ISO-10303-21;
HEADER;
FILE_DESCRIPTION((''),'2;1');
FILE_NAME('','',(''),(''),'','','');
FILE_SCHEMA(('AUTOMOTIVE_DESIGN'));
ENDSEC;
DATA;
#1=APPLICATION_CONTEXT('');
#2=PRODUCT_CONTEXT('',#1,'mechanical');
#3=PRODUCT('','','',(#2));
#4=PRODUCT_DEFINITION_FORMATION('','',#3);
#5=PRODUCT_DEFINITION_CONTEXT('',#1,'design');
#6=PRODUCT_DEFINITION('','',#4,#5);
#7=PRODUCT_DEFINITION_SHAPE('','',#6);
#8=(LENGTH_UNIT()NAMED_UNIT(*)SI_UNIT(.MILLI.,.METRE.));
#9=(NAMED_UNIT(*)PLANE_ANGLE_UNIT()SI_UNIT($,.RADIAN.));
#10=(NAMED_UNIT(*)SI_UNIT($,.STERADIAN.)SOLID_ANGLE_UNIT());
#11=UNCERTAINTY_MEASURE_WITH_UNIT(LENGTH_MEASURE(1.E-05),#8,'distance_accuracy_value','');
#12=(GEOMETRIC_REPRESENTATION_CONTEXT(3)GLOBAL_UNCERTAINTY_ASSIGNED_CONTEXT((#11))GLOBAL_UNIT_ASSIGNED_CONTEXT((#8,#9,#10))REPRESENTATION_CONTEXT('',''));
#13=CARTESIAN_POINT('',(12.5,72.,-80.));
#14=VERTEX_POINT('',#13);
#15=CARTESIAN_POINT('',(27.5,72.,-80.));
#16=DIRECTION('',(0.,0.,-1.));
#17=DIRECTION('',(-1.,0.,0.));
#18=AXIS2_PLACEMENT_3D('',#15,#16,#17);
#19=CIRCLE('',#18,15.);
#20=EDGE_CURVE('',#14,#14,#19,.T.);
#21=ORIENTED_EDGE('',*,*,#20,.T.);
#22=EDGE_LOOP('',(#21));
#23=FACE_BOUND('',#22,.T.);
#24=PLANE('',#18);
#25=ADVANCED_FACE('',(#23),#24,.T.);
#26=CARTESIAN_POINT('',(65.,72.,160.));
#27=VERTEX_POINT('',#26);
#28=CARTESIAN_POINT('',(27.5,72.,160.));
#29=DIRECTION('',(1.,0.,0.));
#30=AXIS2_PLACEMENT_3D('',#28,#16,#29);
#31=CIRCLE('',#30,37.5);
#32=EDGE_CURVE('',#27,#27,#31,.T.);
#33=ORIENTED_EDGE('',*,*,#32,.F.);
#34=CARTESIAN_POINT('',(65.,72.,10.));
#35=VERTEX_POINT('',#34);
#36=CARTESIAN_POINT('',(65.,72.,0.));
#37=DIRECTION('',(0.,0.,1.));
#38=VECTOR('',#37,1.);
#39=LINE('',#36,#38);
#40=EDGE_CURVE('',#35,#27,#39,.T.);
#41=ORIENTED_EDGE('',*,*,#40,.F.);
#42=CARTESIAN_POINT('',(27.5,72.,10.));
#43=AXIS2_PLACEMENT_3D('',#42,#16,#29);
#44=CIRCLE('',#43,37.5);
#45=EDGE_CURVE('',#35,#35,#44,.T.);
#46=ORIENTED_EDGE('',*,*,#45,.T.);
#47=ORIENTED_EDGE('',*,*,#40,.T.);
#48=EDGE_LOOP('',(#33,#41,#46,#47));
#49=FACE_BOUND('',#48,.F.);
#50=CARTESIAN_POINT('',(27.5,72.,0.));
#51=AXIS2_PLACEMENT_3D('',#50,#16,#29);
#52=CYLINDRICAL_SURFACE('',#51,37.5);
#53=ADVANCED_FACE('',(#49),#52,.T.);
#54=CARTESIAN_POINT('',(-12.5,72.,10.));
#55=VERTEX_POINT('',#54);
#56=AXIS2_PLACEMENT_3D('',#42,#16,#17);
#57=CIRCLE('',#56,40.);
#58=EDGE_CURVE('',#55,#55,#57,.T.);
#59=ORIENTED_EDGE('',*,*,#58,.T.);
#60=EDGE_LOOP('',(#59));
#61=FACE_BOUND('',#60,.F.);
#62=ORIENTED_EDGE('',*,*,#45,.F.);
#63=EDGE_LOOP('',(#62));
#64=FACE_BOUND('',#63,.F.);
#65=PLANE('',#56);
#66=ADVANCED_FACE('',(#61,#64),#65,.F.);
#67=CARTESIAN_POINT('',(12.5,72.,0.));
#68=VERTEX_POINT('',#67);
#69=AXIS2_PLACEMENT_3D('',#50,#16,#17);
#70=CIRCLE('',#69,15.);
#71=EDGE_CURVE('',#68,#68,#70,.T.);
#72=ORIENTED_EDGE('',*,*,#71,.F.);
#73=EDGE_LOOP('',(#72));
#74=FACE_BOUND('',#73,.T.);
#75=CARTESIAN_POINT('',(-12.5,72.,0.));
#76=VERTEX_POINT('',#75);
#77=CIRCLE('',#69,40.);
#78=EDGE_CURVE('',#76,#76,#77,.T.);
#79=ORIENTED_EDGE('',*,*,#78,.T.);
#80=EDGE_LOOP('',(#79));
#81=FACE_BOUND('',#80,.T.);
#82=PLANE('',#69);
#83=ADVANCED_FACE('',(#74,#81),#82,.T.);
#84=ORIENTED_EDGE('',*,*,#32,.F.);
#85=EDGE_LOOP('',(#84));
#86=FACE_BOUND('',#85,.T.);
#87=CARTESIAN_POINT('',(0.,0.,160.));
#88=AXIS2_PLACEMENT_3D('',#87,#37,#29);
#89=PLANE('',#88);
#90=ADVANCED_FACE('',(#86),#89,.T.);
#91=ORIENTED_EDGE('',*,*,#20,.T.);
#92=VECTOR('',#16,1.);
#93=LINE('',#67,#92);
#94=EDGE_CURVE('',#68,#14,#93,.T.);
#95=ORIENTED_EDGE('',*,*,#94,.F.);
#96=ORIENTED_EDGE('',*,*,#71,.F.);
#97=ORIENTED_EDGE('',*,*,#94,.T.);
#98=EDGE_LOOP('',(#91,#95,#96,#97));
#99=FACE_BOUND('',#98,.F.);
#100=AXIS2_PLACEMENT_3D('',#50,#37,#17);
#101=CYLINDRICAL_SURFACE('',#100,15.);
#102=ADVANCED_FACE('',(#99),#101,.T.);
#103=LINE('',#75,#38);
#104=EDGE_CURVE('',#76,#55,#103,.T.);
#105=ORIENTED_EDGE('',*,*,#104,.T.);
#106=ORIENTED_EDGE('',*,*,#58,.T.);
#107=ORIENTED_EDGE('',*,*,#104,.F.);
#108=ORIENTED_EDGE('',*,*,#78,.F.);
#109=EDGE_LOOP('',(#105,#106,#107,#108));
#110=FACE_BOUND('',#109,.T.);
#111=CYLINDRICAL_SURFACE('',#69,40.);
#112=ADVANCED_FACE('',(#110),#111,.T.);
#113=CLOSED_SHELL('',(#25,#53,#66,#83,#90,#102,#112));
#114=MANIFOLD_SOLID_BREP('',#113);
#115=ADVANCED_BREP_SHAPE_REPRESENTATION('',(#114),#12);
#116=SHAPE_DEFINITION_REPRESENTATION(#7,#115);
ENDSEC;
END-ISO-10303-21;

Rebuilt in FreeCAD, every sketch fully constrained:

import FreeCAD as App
import Part
import Sketcher
from FreeCAD import Vector

doc = App.newDocument("Part")
body = doc.addObject("PartDesign::Body", "Body")

# Sketch on XY plane
sketch1 = body.newObject("Sketcher::SketchObject", "Sketch")
sketch1.AttachmentSupport = (doc.getObject("XY_Plane"), [""])
sketch1.MapMode = "FlatFace"
sketch1.addGeometry(Part.Circle(Vector(28, 72, 0), Vector(0, 0, 1), 38), False)
sketch1.addConstraint([
    Sketcher.Constraint("Diameter", 0, 75.0),
    Sketcher.Constraint("DistanceY", -1, 1, 0, 3, 72.0),
    Sketcher.Constraint("DistanceX", -1, 1, 0, 3, 27.5),
])
pad1 = body.newObject("PartDesign::Pad", "Pad")
pad1.Profile = sketch1
pad1.Length = 160

# Sketch on XY plane
sketch2 = body.newObject("Sketcher::SketchObject", "Sketch001")
sketch2.AttachmentSupport = (doc.getObject("XY_Plane"), [""])
sketch2.MapMode = "FlatFace"
sketch2.addGeometry(Part.Circle(Vector(28, 72, 0), Vector(0, 0, 1), 40), False)
sketch2.addConstraint([
    Sketcher.Constraint("Diameter", 0, 80.0),
    Sketcher.Constraint("DistanceY", -1, 1, 0, 3, 72.0),
    Sketcher.Constraint("DistanceX", -1, 1, 0, 3, 27.5),
])
pad2 = body.newObject("PartDesign::Pad", "Pad001")
pad2.Profile = sketch2
pad2.Length = 10

# Sketch on XY plane
sketch3 = body.newObject("Sketcher::SketchObject", "Sketch002")
sketch3.AttachmentSupport = (doc.getObject("XY_Plane"), [""])
sketch3.MapMode = "FlatFace"
sketch3.addGeometry(Part.Circle(Vector(28, 72, 0), Vector(0, 0, 1), 15), False)
sketch3.addConstraint([
    Sketcher.Constraint("Diameter", 0, 30.0),
    Sketcher.Constraint("DistanceY", -1, 1, 0, 3, 72.0),
    Sketcher.Constraint("DistanceX", -1, 1, 0, 3, 27.5),
])
pad3 = body.newObject("PartDesign::Pad", "Pad002")
pad3.Profile = sketch3
pad3.Length = 80
pad3.Reversed = True

doc.recompute()
